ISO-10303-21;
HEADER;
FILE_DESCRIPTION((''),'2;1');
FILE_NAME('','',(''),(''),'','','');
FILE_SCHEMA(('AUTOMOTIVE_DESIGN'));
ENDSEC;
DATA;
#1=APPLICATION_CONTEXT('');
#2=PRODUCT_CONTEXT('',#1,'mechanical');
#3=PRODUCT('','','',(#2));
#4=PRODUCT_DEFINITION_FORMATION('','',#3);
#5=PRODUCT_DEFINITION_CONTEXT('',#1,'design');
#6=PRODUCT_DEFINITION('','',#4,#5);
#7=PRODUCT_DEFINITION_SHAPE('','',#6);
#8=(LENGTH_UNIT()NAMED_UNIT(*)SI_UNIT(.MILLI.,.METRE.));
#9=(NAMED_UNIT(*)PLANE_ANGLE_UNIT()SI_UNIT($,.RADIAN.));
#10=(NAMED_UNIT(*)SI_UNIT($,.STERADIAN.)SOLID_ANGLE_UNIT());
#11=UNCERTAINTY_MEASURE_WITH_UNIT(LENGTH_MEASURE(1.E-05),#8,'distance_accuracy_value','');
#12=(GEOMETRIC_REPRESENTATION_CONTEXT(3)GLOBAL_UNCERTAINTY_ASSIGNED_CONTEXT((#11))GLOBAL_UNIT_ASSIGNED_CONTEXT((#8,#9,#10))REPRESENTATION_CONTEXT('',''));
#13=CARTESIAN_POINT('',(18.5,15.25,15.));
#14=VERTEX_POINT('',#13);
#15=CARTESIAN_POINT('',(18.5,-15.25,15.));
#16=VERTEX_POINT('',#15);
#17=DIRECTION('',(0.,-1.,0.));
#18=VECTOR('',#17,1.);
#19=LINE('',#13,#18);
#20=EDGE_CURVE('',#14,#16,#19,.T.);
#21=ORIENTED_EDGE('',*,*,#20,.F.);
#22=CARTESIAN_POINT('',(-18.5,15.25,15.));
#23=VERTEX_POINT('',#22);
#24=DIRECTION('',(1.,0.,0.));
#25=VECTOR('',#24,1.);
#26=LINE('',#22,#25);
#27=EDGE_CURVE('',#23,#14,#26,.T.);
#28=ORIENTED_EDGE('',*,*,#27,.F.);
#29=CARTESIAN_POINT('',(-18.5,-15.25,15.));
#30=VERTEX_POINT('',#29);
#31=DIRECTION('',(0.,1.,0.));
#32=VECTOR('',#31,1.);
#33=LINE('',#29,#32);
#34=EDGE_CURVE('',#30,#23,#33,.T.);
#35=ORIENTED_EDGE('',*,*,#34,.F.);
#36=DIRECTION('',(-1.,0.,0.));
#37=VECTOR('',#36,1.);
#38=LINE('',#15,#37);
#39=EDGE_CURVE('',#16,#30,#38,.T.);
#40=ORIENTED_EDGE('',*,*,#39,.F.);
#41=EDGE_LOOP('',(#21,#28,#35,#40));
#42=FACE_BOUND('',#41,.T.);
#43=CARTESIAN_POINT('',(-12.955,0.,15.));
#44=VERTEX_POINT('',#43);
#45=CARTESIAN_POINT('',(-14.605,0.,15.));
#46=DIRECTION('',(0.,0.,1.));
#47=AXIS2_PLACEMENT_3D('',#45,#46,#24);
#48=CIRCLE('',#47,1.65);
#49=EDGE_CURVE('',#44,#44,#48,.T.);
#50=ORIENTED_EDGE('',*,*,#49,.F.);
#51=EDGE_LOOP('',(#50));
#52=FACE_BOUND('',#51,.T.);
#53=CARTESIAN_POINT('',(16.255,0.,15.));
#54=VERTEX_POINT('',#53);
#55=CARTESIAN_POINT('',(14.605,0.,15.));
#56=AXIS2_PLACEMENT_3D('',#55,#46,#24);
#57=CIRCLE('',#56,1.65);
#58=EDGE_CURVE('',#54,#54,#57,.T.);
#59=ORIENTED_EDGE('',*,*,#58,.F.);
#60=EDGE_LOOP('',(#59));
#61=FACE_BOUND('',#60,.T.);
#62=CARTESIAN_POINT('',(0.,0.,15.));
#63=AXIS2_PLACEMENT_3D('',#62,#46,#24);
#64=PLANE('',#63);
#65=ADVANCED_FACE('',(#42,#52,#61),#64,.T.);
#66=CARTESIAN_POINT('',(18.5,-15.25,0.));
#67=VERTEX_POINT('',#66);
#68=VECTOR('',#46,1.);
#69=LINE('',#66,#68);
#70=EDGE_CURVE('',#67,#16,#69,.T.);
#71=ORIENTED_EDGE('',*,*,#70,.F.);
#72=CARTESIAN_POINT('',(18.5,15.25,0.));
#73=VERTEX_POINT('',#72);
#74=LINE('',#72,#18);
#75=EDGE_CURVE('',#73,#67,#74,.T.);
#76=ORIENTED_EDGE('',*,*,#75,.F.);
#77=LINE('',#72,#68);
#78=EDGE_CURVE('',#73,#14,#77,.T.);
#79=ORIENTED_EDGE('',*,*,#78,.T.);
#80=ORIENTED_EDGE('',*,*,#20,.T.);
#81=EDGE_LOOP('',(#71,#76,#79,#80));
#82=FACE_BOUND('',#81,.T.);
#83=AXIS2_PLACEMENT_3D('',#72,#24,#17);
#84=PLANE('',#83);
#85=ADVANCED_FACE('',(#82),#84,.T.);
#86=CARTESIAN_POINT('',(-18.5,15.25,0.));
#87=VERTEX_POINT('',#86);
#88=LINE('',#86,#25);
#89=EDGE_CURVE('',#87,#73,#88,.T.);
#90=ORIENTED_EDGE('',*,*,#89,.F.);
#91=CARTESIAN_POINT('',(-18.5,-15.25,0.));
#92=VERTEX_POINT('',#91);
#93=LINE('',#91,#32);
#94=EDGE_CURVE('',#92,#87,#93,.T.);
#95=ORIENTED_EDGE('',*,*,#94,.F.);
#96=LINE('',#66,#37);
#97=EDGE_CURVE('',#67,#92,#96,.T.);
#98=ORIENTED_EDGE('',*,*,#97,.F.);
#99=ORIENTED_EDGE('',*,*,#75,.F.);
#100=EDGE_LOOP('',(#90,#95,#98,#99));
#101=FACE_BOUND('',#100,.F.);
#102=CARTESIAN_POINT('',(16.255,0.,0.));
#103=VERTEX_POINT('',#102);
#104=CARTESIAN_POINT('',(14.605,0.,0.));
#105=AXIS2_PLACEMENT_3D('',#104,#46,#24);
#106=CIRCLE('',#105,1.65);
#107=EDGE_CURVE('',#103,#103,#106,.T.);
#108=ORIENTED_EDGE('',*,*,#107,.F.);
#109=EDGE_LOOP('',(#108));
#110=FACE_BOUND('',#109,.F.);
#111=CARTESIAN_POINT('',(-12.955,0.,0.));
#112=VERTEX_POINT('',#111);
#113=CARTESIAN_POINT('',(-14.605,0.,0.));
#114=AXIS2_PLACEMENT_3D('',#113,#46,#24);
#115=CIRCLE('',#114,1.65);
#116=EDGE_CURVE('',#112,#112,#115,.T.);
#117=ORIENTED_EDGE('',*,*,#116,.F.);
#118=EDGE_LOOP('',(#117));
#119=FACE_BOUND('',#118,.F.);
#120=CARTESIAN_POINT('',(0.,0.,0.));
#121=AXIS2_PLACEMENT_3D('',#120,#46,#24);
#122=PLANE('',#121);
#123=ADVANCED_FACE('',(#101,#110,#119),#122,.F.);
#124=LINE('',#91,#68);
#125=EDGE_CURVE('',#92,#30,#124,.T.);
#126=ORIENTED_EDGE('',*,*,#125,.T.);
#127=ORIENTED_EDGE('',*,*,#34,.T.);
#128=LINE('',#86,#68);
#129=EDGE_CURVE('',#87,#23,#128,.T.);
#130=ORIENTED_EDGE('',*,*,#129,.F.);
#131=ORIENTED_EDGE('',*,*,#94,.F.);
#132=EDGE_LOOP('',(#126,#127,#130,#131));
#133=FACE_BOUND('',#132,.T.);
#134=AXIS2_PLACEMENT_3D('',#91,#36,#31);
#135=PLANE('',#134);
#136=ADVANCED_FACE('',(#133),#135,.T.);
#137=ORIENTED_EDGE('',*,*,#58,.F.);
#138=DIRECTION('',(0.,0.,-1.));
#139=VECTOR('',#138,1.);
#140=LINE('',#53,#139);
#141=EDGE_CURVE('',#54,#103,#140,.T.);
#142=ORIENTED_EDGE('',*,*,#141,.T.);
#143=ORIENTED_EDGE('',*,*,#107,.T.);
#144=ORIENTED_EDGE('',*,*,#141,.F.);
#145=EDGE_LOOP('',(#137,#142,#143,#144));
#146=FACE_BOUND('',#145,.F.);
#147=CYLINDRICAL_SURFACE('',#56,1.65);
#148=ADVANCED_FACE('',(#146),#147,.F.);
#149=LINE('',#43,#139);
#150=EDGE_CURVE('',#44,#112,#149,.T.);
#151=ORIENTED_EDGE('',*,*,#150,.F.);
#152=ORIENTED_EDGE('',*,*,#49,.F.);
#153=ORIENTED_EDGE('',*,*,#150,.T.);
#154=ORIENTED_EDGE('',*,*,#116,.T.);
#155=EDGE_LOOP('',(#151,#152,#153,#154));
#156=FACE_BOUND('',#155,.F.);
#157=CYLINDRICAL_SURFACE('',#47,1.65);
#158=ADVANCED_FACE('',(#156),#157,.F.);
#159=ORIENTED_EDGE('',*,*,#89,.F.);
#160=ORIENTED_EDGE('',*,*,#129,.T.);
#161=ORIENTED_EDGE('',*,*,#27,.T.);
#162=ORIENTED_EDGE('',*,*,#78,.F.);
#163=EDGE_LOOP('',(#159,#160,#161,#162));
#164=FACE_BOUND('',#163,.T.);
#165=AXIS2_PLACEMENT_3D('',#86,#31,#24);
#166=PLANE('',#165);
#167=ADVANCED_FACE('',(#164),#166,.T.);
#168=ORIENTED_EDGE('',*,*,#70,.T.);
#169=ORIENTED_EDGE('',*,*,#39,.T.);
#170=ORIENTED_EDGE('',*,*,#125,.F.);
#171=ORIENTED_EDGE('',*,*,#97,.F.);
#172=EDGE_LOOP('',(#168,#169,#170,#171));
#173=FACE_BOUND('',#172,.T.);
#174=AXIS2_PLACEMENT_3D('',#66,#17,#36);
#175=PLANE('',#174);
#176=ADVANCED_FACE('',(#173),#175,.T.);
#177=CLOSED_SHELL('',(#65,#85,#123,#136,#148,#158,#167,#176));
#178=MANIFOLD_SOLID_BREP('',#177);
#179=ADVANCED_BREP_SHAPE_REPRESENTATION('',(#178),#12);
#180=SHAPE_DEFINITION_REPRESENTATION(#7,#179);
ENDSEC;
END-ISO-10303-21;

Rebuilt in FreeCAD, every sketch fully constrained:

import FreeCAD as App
import Part
import Sketcher

V = App.Vector


def add_polygon(sketch, points):
    """Adds a closed chain of lines whose ends are joined by coincident constraints."""
    first, n = sketch.GeometryCount, len(points)
    for a, b in zip(points, points[1:] + points[:1]):
        sketch.addGeometry(Part.LineSegment(App.Vector(*a, 0), App.Vector(*b, 0)), False)
    for i in range(n):
        sketch.addConstraint(Sketcher.Constraint("Coincident", first + i, 2, first + (i + 1) % n, 1))

doc = App.newDocument("Part")
params = doc.addObject("Spreadsheet::Sheet", "Params")
for row, (alias, value) in enumerate([
    ("sketch1_width", "37 mm"),
    ("sketch1_height", "30.5 mm"),
    ("pad1_length", "15 mm"),
    ("sketch2_diameter", "3.3 mm"),
], start=1):
    params.set(f"A{row}", alias)
    params.set(f"B{row}", "=" + value)
    params.setAlias(f"B{row}", alias)

body = doc.addObject("PartDesign::Body", "Body")

# Sketch on XY plane
sketch1 = body.newObject("Sketcher::SketchObject", "Sketch")
sketch1.AttachmentSupport = (doc.getObject("XY_Plane"), [""])
sketch1.MapMode = "FlatFace"
add_polygon(sketch1, [(18, 15), (-18, 15), (-18, -15), (18, -15)])  # lines 0-3
sketch1.addConstraint([
    Sketcher.Constraint("Horizontal", 0),
    Sketcher.Constraint("Vertical", 1),
    Sketcher.Constraint("Horizontal", 2),
    Sketcher.Constraint("Vertical", 3),
    Sketcher.Constraint("Symmetric", 0, 2, 2, 2, -1, 1),
    Sketcher.Constraint("DistanceX", 0, 2, 0, 1, 37.0),
    Sketcher.Constraint("DistanceY", 1, 2, 1, 1, 30.5),
])
sketch1.setExpression("Constraints[9]", "Params.sketch1_width")
sketch1.setExpression("Constraints[10]", "Params.sketch1_height")
pad1 = body.newObject("PartDesign::Pad", "Pad")
pad1.Profile = sketch1
pad1.setExpression("Length", "Params.pad1_length")

# Sketch on XY plane
sketch2 = body.newObject("Sketcher::SketchObject", "Sketch001")
sketch2.AttachmentSupport = (doc.getObject("XY_Plane"), [""])
sketch2.MapMode = "FlatFace"
sketch2.AttachmentOffset = App.Placement(V(0, 0, 15), App.Rotation())
sketch2.addGeometry([
    Part.Circle(V(14.6, 0, 0), V(0, 0, 1), 1.6),
    Part.Circle(V(-14.6, 0, 0), V(0, 0, 1), 1.6),
], False)
sketch2.addConstraint([
    Sketcher.Constraint("Equal", 0, 1),
    Sketcher.Constraint("Symmetric", 0, 3, 1, 3, -1, 1),
    Sketcher.Constraint("PointOnObject", 0, 3, -1),
    Sketcher.Constraint("Diameter", 0, 3.3),
    Sketcher.Constraint("DistanceX", 1, 3, 0, 3, 29.21),
])
sketch2.setExpression("Constraints[3]", "Params.sketch2_diameter")
pocket1 = body.newObject("PartDesign::Pocket", "Pocket")
pocket1.Profile = sketch2
pocket1.Type = "UpToFirst"

doc.recompute()
